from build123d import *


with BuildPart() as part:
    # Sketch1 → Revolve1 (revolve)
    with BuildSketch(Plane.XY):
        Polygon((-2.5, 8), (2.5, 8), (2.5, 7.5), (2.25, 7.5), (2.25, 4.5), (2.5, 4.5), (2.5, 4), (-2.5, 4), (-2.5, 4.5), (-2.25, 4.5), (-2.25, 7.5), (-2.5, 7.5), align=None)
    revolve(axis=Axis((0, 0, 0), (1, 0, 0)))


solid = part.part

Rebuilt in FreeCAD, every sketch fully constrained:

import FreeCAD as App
import Part
import Sketcher

V = App.Vector


def add_polygon(sketch, points):
    """Adds a closed chain of lines whose ends are joined by coincident constraints."""
    first, n = sketch.GeometryCount, len(points)
    for a, b in zip(points, points[1:] + points[:1]):
        sketch.addGeometry(Part.LineSegment(App.Vector(*a, 0), App.Vector(*b, 0)), False)
    for i in range(n):
        sketch.addConstraint(Sketcher.Constraint("Coincident", first + i, 2, first + (i + 1) % n, 1))

doc = App.newDocument("Part")
params = doc.addObject("Spreadsheet::Sheet", "Params")
for row, (alias, value) in enumerate([
    ("sketch1_width", "5 mm"),
    ("sketch1_height", "3 mm"),
    ("sketch1_height2", "0.5 mm"),
    ("sketch1_width2", "0.25 mm"),
    ("revolution_angle", "360 deg"),
], start=1):
    params.set(f"A{row}", alias)
    params.set(f"B{row}", "=" + value)
    params.setAlias(f"B{row}", alias)

body = doc.addObject("PartDesign::Body", "Body")

sketch1 = body.newObject("Sketcher::SketchObject", "Sketch")
sketch1.AttachmentSupport = (doc.getObject("XY_Plane"), [""])
sketch1.MapMode = "FlatFace"
add_polygon(sketch1, [(2.5, 8), (-2.5, 8), (-2.5, 7.5), (-2.25, 7.5), (-2.25, 4.5), (-2.5, 4.5), (-2.5, 4), (2.5, 4), (2.5, 4.5), (2.25, 4.5), (2.25, 7.5), (2.5, 7.5)])
sketch1.addConstraint([
    Sketcher.Constraint("Horizontal", 0),
    Sketcher.Constraint("Vertical", 1),
    Sketcher.Constraint("Horizontal", 2),
    Sketcher.Constraint("Vertical", 3),
    Sketcher.Constraint("Horizontal", 4),
    Sketcher.Constraint("Vertical", 5),
    Sketcher.Constraint("Horizontal", 6),
    Sketcher.Constraint("Vertical", 7),
    Sketcher.Constraint("Horizontal", 8),
    Sketcher.Constraint("Vertical", 9),
    Sketcher.Constraint("Horizontal", 10),
    Sketcher.Constraint("Vertical", 11),
    Sketcher.Constraint("Symmetric", 4, 2, 7, 2, -2),
    Sketcher.Constraint("Symmetric", 2, 2, 9, 2, -2),
    Sketcher.Constraint("Vertical", 1, 2, 4, 2),
    Sketcher.Constraint("Vertical", 7, 2, 10, 2),
    Sketcher.Constraint("Equal", 1, 5),
    Sketcher.Constraint("DistanceX", 0, 2, 0, 1, 5.0),
    Sketcher.Constraint("DistanceY", 3, 2, 3, 1, 3.0),
    Sketcher.Constraint("DistanceY", 1, 2, 1, 1, 0.5),
    Sketcher.Constraint("DistanceY", -1, 1, 0, 2, 8.0),
    Sketcher.Constraint("DistanceX", 2, 1, 2, 2, 0.25),
])
sketch1.setExpression("Constraints[29]", "Params.sketch1_width")
sketch1.setExpression("Constraints[30]", "Params.sketch1_height")
sketch1.setExpression("Constraints[31]", "Params.sketch1_height2")
sketch1.setExpression("Constraints[33]", "Params.sketch1_width2")
revolution = body.newObject("PartDesign::Revolution", "Revolution")
revolution.Profile = sketch1
revolution.ReferenceAxis = (sketch1, ["H_Axis"])
revolution.setExpression("Angle", "Params.revolution_angle")

doc.recompute()
